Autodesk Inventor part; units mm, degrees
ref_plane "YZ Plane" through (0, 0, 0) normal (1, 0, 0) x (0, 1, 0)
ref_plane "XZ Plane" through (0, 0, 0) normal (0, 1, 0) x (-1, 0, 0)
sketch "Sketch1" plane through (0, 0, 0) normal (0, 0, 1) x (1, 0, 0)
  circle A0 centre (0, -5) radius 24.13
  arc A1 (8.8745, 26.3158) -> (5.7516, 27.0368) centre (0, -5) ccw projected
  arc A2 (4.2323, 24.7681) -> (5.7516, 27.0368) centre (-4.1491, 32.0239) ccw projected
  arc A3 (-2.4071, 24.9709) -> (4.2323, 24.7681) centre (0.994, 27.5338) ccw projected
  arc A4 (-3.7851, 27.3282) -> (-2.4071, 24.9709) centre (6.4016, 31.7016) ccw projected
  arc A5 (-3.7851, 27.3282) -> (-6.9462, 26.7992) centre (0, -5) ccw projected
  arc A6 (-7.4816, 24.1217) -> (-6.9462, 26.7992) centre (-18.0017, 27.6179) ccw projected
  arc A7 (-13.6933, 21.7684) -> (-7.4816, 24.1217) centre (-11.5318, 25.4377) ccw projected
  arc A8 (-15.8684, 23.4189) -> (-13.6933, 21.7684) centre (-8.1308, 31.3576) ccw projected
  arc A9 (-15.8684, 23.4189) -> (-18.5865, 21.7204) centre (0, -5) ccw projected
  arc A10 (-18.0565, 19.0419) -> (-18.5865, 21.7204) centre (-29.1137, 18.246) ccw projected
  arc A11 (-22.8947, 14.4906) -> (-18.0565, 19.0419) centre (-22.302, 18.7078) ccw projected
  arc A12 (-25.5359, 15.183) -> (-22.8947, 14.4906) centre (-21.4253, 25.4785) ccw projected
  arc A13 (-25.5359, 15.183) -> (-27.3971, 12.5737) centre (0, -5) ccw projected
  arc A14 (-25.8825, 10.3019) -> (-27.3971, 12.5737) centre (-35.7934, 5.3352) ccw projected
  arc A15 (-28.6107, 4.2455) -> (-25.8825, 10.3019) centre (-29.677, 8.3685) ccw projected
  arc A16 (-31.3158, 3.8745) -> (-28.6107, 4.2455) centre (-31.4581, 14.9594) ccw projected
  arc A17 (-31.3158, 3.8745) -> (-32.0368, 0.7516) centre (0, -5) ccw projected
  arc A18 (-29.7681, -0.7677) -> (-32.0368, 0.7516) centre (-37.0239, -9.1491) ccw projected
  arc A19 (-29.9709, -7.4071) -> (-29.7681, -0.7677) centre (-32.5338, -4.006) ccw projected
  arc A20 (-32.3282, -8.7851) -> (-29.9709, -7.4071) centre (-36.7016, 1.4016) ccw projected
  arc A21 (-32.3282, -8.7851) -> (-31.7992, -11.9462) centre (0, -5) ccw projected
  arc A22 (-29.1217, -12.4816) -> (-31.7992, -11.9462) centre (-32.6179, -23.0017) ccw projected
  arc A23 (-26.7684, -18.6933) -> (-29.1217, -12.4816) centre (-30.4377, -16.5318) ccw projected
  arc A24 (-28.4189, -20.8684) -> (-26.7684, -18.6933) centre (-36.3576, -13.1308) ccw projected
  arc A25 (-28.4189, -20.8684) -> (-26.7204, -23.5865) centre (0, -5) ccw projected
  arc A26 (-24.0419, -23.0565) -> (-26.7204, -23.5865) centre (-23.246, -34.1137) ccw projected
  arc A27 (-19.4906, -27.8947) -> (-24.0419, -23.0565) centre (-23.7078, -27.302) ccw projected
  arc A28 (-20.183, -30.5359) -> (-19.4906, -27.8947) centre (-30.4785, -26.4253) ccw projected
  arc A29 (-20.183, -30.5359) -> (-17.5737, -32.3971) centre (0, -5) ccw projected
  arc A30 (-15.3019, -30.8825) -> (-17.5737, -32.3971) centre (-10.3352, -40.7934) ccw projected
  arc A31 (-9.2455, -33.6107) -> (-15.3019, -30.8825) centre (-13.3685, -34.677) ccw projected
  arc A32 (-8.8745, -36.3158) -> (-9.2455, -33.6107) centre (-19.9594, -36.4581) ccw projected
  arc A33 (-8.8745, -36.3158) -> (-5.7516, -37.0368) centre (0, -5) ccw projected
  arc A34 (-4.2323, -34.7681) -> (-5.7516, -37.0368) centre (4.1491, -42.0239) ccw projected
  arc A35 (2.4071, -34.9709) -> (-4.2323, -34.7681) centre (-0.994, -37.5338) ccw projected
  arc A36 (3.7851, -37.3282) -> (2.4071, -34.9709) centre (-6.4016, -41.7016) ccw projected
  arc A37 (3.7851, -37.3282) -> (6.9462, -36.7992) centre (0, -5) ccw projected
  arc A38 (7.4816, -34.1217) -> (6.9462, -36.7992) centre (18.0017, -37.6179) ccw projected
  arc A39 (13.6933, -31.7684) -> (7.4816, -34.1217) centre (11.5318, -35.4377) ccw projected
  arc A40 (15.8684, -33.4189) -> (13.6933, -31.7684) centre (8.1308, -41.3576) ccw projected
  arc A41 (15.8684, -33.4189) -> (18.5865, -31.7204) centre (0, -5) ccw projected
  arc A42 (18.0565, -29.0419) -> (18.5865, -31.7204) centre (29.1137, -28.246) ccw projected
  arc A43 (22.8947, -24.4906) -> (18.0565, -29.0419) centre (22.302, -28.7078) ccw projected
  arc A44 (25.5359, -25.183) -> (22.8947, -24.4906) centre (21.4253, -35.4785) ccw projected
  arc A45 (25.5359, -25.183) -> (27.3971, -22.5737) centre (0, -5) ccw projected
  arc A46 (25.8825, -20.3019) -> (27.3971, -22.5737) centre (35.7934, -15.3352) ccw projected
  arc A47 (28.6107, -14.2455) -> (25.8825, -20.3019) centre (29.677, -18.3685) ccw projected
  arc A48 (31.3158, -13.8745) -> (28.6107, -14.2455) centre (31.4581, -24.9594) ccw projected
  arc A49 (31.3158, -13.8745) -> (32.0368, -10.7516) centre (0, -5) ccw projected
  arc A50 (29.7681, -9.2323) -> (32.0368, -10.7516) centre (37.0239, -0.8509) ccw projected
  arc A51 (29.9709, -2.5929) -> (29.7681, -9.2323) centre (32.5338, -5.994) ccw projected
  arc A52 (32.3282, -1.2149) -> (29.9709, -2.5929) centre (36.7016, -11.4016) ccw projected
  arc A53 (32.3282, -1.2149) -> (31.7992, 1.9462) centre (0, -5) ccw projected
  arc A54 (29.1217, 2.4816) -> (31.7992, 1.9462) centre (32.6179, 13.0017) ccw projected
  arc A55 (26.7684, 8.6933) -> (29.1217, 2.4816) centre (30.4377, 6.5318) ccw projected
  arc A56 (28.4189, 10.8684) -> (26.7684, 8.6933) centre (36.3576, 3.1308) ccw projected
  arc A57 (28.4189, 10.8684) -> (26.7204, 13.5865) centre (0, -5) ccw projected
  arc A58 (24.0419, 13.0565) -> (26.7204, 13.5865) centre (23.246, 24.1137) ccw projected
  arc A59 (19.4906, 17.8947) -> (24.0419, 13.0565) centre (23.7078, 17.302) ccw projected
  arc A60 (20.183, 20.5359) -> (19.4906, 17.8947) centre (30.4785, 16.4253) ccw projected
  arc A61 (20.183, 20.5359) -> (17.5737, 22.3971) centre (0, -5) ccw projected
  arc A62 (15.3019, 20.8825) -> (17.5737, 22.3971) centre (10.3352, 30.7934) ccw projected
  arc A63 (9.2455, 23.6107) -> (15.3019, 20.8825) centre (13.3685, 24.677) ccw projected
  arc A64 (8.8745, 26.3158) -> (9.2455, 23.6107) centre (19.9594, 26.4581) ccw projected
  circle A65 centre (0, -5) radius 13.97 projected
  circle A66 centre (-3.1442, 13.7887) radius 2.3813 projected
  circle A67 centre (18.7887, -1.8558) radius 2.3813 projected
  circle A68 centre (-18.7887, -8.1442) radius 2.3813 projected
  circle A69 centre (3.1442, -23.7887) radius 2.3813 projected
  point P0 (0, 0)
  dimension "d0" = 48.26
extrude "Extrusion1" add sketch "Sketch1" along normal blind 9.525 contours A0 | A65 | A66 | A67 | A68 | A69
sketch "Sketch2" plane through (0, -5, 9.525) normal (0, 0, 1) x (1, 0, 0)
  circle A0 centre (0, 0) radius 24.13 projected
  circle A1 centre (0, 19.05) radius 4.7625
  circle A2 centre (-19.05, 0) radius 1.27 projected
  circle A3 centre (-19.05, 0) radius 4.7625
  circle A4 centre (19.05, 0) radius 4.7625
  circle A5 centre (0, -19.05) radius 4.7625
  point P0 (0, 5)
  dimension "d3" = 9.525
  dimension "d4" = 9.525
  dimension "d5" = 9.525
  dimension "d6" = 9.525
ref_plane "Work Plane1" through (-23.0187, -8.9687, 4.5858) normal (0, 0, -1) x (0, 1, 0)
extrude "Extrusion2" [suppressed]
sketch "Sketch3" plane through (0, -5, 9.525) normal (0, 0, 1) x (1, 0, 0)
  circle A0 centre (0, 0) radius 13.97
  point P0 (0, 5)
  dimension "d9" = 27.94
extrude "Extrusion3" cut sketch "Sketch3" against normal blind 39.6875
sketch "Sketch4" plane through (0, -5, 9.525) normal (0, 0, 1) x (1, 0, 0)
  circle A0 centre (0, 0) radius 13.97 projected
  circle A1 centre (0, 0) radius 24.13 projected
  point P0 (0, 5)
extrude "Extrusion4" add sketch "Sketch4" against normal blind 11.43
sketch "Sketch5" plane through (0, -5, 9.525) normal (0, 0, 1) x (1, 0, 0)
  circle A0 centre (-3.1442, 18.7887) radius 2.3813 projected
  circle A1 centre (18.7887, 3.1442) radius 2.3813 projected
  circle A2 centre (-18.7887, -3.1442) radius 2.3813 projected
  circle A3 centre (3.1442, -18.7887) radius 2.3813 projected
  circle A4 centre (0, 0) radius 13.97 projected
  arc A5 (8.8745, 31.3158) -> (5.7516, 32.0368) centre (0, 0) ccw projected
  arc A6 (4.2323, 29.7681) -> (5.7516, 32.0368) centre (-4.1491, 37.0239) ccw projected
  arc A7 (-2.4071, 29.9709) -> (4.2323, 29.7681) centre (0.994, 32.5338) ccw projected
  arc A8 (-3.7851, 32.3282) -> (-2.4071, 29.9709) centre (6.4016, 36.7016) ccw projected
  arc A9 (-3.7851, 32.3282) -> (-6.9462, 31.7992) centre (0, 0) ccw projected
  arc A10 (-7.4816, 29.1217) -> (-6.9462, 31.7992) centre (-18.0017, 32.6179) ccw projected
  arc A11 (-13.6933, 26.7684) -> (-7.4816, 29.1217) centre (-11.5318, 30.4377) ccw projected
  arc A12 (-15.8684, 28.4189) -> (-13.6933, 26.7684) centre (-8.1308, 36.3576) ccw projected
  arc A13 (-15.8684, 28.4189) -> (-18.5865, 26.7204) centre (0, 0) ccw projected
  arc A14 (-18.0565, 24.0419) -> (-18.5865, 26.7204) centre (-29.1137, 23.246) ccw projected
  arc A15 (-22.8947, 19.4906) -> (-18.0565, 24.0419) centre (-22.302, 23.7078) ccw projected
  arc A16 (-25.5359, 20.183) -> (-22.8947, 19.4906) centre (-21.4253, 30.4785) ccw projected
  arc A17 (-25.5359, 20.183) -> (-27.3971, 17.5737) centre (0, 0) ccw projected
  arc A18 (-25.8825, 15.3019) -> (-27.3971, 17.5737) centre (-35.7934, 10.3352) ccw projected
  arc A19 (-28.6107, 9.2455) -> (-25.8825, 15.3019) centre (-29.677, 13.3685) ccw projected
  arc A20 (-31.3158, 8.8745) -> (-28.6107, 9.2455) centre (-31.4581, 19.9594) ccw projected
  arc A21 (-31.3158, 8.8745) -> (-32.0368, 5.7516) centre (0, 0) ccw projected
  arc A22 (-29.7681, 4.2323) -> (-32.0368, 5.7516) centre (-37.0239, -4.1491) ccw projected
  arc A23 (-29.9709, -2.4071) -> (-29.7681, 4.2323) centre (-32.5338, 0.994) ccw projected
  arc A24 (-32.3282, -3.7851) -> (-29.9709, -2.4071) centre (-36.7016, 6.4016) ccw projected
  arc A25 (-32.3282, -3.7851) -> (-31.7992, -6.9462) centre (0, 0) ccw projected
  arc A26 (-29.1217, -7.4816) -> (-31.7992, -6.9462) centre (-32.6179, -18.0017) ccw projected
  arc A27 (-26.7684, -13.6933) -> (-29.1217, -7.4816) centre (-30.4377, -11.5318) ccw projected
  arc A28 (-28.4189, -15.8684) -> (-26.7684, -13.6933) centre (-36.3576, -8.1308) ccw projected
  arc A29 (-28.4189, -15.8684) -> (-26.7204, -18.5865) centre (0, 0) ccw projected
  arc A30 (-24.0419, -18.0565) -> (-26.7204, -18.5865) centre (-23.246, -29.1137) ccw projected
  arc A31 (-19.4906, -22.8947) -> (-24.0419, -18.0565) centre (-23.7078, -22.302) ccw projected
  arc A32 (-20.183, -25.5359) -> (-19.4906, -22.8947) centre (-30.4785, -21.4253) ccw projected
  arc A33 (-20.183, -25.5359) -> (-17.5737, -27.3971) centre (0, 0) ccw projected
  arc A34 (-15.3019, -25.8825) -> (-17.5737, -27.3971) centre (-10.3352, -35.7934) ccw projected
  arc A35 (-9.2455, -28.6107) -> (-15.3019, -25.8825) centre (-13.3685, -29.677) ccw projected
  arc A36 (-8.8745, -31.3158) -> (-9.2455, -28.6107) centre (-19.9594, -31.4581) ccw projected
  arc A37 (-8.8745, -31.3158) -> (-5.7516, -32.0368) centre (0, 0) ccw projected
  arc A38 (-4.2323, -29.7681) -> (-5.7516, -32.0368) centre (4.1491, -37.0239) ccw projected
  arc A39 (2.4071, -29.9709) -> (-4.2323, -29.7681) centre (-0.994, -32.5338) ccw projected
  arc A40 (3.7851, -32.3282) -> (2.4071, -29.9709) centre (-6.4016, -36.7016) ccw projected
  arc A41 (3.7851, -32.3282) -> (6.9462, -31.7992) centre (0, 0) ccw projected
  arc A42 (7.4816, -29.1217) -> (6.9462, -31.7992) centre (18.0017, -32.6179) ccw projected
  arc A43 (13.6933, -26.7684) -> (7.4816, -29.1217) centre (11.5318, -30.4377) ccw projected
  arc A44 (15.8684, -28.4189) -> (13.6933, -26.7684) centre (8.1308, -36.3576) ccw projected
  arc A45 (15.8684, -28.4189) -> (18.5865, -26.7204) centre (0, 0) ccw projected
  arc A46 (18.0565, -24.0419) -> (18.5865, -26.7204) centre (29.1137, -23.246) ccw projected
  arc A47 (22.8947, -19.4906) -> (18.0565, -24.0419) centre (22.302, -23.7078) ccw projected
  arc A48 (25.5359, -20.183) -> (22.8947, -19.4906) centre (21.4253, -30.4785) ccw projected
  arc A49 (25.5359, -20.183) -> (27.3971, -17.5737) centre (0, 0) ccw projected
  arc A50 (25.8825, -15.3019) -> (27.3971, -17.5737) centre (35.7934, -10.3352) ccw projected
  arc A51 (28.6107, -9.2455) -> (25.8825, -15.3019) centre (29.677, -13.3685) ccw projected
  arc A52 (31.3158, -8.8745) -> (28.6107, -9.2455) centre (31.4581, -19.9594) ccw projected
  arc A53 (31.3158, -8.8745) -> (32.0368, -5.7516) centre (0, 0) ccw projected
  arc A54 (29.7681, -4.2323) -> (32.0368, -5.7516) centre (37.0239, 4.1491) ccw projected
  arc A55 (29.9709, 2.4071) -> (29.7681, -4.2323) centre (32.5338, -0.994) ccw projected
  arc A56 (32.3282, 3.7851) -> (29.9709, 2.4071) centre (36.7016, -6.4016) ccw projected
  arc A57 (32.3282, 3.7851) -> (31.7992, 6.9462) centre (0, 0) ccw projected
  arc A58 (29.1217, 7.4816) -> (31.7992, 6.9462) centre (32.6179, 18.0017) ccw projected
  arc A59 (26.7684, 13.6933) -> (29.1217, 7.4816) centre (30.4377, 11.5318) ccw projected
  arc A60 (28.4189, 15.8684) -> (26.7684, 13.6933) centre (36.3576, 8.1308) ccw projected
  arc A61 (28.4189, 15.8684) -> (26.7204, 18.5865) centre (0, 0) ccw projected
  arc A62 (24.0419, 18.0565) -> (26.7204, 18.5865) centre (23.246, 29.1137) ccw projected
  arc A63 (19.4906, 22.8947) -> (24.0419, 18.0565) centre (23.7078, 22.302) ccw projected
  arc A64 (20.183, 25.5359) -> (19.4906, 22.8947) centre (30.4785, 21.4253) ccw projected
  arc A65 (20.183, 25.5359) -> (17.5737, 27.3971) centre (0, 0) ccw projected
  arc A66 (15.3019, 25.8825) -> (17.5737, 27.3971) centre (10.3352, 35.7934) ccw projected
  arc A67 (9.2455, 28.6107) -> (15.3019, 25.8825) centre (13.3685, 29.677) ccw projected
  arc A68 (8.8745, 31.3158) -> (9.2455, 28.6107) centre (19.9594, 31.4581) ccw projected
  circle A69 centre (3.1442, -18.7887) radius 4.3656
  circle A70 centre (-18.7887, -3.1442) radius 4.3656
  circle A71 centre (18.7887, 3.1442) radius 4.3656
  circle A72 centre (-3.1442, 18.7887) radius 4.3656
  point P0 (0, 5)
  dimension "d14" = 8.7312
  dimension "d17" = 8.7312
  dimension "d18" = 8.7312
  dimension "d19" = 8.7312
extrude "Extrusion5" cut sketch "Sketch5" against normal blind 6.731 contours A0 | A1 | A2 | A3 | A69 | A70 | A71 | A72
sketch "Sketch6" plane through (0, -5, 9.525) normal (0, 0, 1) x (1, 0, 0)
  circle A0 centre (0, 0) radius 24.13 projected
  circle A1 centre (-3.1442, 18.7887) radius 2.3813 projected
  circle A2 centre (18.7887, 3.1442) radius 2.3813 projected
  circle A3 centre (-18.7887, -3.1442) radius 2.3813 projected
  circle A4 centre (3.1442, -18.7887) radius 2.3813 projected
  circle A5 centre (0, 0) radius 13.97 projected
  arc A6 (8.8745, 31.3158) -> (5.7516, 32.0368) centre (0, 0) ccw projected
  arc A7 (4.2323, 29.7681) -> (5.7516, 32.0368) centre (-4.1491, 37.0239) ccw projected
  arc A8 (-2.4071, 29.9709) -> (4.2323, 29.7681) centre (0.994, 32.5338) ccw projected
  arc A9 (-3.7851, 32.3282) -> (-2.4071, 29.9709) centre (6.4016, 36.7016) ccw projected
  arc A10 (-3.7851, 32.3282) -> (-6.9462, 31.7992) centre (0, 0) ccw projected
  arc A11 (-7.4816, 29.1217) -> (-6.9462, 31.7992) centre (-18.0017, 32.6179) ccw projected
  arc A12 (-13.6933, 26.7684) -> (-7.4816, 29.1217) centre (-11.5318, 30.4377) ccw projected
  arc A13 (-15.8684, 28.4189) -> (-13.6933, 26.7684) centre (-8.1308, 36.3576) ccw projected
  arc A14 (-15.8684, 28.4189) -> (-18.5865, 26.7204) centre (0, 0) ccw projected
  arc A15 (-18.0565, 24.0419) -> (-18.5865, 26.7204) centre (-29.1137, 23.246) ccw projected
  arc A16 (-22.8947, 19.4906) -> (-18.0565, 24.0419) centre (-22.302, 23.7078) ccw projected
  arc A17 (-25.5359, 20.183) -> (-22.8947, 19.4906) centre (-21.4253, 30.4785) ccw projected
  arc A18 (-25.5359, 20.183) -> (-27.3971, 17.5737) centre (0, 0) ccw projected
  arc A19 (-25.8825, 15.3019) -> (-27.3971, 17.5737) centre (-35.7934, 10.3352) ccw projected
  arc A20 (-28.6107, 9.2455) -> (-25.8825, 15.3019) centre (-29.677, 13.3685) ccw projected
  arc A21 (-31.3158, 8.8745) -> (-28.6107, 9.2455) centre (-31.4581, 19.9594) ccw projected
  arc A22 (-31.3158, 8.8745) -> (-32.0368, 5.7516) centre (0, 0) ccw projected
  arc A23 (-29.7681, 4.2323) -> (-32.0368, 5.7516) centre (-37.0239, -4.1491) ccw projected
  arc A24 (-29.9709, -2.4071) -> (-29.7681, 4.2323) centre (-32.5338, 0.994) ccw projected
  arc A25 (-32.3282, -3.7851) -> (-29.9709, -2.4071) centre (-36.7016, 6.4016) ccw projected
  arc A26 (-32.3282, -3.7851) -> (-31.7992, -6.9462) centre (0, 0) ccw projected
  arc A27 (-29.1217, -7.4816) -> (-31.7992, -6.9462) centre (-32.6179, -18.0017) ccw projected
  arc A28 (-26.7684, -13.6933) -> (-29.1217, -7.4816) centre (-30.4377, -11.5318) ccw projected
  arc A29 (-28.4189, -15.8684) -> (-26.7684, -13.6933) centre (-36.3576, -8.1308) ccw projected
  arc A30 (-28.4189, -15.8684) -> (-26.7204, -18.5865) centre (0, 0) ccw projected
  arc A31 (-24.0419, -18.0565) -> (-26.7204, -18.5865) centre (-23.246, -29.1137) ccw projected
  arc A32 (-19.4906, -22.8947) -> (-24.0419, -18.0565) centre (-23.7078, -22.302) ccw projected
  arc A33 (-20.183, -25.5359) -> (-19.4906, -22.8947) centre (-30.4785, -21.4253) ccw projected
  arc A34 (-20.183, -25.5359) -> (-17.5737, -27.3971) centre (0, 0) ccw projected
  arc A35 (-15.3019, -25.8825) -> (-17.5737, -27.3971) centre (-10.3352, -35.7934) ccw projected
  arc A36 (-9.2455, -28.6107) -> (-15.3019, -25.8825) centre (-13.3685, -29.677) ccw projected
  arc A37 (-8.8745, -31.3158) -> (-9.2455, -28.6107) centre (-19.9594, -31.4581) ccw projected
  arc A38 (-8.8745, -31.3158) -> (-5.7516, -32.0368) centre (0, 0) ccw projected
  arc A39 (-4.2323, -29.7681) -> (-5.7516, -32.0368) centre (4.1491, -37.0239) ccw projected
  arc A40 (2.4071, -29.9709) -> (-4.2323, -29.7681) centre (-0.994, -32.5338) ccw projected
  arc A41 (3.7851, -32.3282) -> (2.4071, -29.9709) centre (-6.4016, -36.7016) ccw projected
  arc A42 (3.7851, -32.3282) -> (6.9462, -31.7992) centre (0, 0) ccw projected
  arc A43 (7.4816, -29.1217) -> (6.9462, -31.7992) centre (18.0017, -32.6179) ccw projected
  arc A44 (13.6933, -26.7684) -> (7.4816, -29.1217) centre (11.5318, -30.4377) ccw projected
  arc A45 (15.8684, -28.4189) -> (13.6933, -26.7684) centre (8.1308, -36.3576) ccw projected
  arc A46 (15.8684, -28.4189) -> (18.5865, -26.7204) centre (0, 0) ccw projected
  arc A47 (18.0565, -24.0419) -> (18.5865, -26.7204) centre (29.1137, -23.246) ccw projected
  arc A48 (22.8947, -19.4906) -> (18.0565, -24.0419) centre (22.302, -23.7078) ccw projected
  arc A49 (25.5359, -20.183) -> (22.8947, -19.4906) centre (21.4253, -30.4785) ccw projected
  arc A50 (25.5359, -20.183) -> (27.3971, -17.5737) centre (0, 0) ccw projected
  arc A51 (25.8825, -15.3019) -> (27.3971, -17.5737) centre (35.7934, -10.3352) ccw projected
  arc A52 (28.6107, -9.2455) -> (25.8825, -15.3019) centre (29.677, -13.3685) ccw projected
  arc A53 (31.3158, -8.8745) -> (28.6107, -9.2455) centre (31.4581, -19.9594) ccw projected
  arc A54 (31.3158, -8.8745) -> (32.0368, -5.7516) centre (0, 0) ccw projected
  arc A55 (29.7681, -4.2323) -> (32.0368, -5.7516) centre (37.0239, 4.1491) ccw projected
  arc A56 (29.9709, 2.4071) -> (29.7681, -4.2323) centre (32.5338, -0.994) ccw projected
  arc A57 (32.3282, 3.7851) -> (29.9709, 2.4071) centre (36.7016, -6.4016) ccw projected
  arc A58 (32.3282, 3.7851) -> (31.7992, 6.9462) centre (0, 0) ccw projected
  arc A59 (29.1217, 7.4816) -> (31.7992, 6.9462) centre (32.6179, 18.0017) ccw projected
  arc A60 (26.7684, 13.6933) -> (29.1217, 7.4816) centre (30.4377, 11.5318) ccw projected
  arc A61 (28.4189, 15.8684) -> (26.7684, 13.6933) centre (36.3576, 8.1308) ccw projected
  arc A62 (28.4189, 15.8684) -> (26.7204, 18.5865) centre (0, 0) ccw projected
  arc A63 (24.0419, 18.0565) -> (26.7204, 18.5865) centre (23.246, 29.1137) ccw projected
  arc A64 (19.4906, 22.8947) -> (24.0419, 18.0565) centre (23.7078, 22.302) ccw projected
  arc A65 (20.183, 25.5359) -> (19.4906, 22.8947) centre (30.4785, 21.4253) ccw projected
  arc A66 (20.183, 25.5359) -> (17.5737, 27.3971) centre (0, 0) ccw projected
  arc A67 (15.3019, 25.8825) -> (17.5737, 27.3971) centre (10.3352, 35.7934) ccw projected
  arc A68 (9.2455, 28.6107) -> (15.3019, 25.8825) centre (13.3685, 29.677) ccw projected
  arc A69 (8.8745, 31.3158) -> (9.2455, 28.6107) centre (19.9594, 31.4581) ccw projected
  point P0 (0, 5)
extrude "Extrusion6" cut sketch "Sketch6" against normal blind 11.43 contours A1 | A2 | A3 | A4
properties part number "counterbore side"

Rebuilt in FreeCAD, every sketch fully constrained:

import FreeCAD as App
import Part
import Sketcher
Q = App.Units.Quantity

doc = App.newDocument("Part")
body = doc.addObject("PartDesign::Body", "Body")

# Sketch on XY plane
sketch1 = doc.addObject("Sketcher::SketchObject", "Sketch")
body.addObject(sketch1)
sketch1.AttachmentSupport = (doc.XY_Plane, [""])
sketch1.MapMode = "FlatFace"
sketch1.addGeometry(Part.Circle(App.Vector(0, -5, 0), App.Vector(0, 0, 1), 24), False)
sketch1.addConstraint(Sketcher.Constraint("PointOnObject", 0, 3, -2))
sketch1.addConstraint(Sketcher.Constraint("Diameter", 0, Q("1.9 in")))
sketch1.addConstraint(Sketcher.Constraint("DistanceY", 0, 3, -1, 1, 5.0))
pad1 = doc.addObject("PartDesign::Pad", "Pad")
body.addObject(pad1)
pad1.Profile = sketch1
pad1.Length = Q("0.375 in")

# Sketch on XY plane
sketch2 = doc.addObject("Sketcher::SketchObject", "Sketch001")
body.addObject(sketch2)
sketch2.AttachmentSupport = (doc.XY_Plane, [""])
sketch2.MapMode = "FlatFace"
sketch2.AttachmentOffset = App.Placement(App.Vector(0, 0, 0.375 * 25.4), App.Rotation())
sketch2.addGeometry(Part.Circle(App.Vector(0, -5, 0), App.Vector(0, 0, 1), 14), False)
sketch2.addConstraint(Sketcher.Constraint("PointOnObject", 0, 3, -2))
sketch2.addConstraint(Sketcher.Constraint("Diameter", 0, Q("1.1 in")))
sketch2.addConstraint(Sketcher.Constraint("DistanceY", 0, 3, -1, 1, 5.0))
pocket1 = doc.addObject("PartDesign::Pocket", "Pocket")
body.addObject(pocket1)
pocket1.Profile = sketch2
pocket1.Length = Q("1.5625 in")

# Sketch on XY plane
sketch3 = doc.addObject("Sketcher::SketchObject", "Sketch002")
body.addObject(sketch3)
sketch3.AttachmentSupport = (doc.XY_Plane, [""])
sketch3.MapMode = "FlatFace"
sketch3.AttachmentOffset = App.Placement(App.Vector(0, 0, 0.375 * 25.4), App.Rotation())
sketch3.addGeometry(Part.Circle(App.Vector(0, -5, 0), App.Vector(0, 0, 1), 24), False)
sketch3.addGeometry(Part.Circle(App.Vector(0, -5, 0), App.Vector(0, 0, 1), 14), False)
sketch3.addConstraint(Sketcher.Constraint("Coincident", 1, 3, 0, 3))
sketch3.addConstraint(Sketcher.Constraint("PointOnObject", 0, 3, -2))
sketch3.addConstraint(Sketcher.Constraint("Diameter", 0, Q("1.9 in")))
sketch3.addConstraint(Sketcher.Constraint("Diameter", 1, Q("1.1 in")))
sketch3.addConstraint(Sketcher.Constraint("DistanceY", 0, 3, -1, 1, 5.0))
pad2 = doc.addObject("PartDesign::Pad", "Pad001")
body.addObject(pad2)
pad2.Profile = sketch3
pad2.Length = Q("0.45 in")
pad2.Reversed = True

# Sketch on XY plane
sketch4 = doc.addObject("Sketcher::SketchObject", "Sketch003")
body.addObject(sketch4)
sketch4.AttachmentSupport = (doc.XY_Plane, [""])
sketch4.MapMode = "FlatFace"
sketch4.AttachmentOffset = App.Placement(App.Vector(0, 0, 0.375 * 25.4), App.Rotation())
sketch4.addGeometry(Part.Circle(App.Vector(-3.1, 13.8, 0), App.Vector(0, 0, 1), 4.4), False)
sketch4.addGeometry(Part.Circle(App.Vector(18.8, -1.9, 0), App.Vector(0, 0, 1), 4.4), False)
sketch4.addGeometry(Part.Circle(App.Vector(-18.8, -8.1, 0), App.Vector(0, 0, 1), 4.4), False)
sketch4.addGeometry(Part.Circle(App.Vector(3.1, -23.8, 0), App.Vector(0, 0, 1), 4.4), False)
sketch4.addConstraint(Sketcher.Constraint("Equal", 0, 1))
sketch4.addConstraint(Sketcher.Constraint("Equal", 1, 2))
sketch4.addConstraint(Sketcher.Constraint("Equal", 2, 3))
sketch4.addConstraint(Sketcher.Constraint("Diameter", 0, Q("0.343748 in")))
sketch4.addConstraint(Sketcher.Constraint("DistanceX", 0, 3, 1, 3, Q("0.8635 in")))
sketch4.addConstraint(Sketcher.Constraint("DistanceY", 2, 3, 0, 3, Q("0.8635 in")))
sketch4.addConstraint(Sketcher.Constraint("DistanceY", 3, 3, 1, 3, Q("0.8635 in")))
sketch4.addConstraint(Sketcher.Constraint("DistanceX", 2, 3, 3, 3, Q("0.8635 in")))
sketch4.addConstraint(Sketcher.Constraint("DistanceX", 0, 3, -1, 1, 3.1442))
sketch4.addConstraint(Sketcher.Constraint("DistanceY", -1, 1, 0, 3, 13.7887))
sketch4.addConstraint(Sketcher.Constraint("DistanceY", 1, 3, -1, 1, 1.8558))
sketch4.addConstraint(Sketcher.Constraint("DistanceX", 2, 3, -1, 1, 18.7887))
pocket2 = doc.addObject("PartDesign::Pocket", "Pocket001")
body.addObject(pocket2)
pocket2.Profile = sketch4
pocket2.Length = Q("0.265 in")

# Sketch on XY plane
sketch5 = doc.addObject("Sketcher::SketchObject", "Sketch004")
body.addObject(sketch5)
sketch5.AttachmentSupport = (doc.XY_Plane, [""])
sketch5.MapMode = "FlatFace"
sketch5.AttachmentOffset = App.Placement(App.Vector(0, 0, 0.375 * 25.4), App.Rotation())
sketch5.addGeometry(Part.Circle(App.Vector(-3.1, 13.8, 0), App.Vector(0, 0, 1), 2.4), False)
sketch5.addGeometry(Part.Circle(App.Vector(18.8, -1.9, 0), App.Vector(0, 0, 1), 2.4), False)
sketch5.addGeometry(Part.Circle(App.Vector(-18.8, -8.1, 0), App.Vector(0, 0, 1), 2.4), False)
sketch5.addGeometry(Part.Circle(App.Vector(3.1, -23.8, 0), App.Vector(0, 0, 1), 2.4), False)
sketch5.addConstraint(Sketcher.Constraint("Equal", 0, 1))
sketch5.addConstraint(Sketcher.Constraint("Equal", 1, 2))
sketch5.addConstraint(Sketcher.Constraint("Equal", 2, 3))
sketch5.addConstraint(Sketcher.Constraint("Diameter", 0, Q("0.1875 in")))
sketch5.addConstraint(Sketcher.Constraint("DistanceX", 0, 3, 1, 3, Q("0.8635 in")))
sketch5.addConstraint(Sketcher.Constraint("DistanceY", 2, 3, 0, 3, Q("0.8635 in")))
sketch5.addConstraint(Sketcher.Constraint("DistanceY", 3, 3, 1, 3, Q("0.8635 in")))
sketch5.addConstraint(Sketcher.Constraint("DistanceX", 2, 3, 3, 3, Q("0.8635 in")))
sketch5.addConstraint(Sketcher.Constraint("DistanceX", 0, 3, -1, 1, 3.1442))
sketch5.addConstraint(Sketcher.Constraint("DistanceY", -1, 1, 0, 3, 13.7887))
sketch5.addConstraint(Sketcher.Constraint("DistanceY", 1, 3, -1, 1, 1.8558))
sketch5.addConstraint(Sketcher.Constraint("DistanceX", 2, 3, -1, 1, 18.7887))
pocket3 = doc.addObject("PartDesign::Pocket", "Pocket002")
body.addObject(pocket3)
pocket3.Profile = sketch5
pocket3.Length = Q("0.45 in")

doc.recompute()
